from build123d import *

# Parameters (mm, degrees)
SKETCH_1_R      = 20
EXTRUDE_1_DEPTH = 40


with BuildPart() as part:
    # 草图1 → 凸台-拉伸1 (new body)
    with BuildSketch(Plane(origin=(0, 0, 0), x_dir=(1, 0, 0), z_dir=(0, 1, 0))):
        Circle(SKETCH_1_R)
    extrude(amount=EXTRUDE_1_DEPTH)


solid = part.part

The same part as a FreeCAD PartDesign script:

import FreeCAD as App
import Part
import Sketcher

doc = App.newDocument("Part")
body = doc.addObject("PartDesign::Body", "Body")

sketch1 = body.newObject("Sketcher::SketchObject", "Sketch")
sketch1.AttachmentSupport = (doc.getObject("XZ_Plane"), [""])
sketch1.MapMode = "FlatFace"
sketch1.addGeometry(Part.Circle(App.Vector(0, 0, 0), App.Vector(0, 0, 1), 20), False)
sketch1.addConstraint(Sketcher.Constraint("Coincident", 0, 3, -1, 1))
sketch1.addConstraint(Sketcher.Constraint("Diameter", 0, 40.0))
pad1 = body.newObject("PartDesign::Pad", "Pad")
pad1.Profile = sketch1
pad1.Length = 40
pad1.Reversed = True

doc.recompute()
